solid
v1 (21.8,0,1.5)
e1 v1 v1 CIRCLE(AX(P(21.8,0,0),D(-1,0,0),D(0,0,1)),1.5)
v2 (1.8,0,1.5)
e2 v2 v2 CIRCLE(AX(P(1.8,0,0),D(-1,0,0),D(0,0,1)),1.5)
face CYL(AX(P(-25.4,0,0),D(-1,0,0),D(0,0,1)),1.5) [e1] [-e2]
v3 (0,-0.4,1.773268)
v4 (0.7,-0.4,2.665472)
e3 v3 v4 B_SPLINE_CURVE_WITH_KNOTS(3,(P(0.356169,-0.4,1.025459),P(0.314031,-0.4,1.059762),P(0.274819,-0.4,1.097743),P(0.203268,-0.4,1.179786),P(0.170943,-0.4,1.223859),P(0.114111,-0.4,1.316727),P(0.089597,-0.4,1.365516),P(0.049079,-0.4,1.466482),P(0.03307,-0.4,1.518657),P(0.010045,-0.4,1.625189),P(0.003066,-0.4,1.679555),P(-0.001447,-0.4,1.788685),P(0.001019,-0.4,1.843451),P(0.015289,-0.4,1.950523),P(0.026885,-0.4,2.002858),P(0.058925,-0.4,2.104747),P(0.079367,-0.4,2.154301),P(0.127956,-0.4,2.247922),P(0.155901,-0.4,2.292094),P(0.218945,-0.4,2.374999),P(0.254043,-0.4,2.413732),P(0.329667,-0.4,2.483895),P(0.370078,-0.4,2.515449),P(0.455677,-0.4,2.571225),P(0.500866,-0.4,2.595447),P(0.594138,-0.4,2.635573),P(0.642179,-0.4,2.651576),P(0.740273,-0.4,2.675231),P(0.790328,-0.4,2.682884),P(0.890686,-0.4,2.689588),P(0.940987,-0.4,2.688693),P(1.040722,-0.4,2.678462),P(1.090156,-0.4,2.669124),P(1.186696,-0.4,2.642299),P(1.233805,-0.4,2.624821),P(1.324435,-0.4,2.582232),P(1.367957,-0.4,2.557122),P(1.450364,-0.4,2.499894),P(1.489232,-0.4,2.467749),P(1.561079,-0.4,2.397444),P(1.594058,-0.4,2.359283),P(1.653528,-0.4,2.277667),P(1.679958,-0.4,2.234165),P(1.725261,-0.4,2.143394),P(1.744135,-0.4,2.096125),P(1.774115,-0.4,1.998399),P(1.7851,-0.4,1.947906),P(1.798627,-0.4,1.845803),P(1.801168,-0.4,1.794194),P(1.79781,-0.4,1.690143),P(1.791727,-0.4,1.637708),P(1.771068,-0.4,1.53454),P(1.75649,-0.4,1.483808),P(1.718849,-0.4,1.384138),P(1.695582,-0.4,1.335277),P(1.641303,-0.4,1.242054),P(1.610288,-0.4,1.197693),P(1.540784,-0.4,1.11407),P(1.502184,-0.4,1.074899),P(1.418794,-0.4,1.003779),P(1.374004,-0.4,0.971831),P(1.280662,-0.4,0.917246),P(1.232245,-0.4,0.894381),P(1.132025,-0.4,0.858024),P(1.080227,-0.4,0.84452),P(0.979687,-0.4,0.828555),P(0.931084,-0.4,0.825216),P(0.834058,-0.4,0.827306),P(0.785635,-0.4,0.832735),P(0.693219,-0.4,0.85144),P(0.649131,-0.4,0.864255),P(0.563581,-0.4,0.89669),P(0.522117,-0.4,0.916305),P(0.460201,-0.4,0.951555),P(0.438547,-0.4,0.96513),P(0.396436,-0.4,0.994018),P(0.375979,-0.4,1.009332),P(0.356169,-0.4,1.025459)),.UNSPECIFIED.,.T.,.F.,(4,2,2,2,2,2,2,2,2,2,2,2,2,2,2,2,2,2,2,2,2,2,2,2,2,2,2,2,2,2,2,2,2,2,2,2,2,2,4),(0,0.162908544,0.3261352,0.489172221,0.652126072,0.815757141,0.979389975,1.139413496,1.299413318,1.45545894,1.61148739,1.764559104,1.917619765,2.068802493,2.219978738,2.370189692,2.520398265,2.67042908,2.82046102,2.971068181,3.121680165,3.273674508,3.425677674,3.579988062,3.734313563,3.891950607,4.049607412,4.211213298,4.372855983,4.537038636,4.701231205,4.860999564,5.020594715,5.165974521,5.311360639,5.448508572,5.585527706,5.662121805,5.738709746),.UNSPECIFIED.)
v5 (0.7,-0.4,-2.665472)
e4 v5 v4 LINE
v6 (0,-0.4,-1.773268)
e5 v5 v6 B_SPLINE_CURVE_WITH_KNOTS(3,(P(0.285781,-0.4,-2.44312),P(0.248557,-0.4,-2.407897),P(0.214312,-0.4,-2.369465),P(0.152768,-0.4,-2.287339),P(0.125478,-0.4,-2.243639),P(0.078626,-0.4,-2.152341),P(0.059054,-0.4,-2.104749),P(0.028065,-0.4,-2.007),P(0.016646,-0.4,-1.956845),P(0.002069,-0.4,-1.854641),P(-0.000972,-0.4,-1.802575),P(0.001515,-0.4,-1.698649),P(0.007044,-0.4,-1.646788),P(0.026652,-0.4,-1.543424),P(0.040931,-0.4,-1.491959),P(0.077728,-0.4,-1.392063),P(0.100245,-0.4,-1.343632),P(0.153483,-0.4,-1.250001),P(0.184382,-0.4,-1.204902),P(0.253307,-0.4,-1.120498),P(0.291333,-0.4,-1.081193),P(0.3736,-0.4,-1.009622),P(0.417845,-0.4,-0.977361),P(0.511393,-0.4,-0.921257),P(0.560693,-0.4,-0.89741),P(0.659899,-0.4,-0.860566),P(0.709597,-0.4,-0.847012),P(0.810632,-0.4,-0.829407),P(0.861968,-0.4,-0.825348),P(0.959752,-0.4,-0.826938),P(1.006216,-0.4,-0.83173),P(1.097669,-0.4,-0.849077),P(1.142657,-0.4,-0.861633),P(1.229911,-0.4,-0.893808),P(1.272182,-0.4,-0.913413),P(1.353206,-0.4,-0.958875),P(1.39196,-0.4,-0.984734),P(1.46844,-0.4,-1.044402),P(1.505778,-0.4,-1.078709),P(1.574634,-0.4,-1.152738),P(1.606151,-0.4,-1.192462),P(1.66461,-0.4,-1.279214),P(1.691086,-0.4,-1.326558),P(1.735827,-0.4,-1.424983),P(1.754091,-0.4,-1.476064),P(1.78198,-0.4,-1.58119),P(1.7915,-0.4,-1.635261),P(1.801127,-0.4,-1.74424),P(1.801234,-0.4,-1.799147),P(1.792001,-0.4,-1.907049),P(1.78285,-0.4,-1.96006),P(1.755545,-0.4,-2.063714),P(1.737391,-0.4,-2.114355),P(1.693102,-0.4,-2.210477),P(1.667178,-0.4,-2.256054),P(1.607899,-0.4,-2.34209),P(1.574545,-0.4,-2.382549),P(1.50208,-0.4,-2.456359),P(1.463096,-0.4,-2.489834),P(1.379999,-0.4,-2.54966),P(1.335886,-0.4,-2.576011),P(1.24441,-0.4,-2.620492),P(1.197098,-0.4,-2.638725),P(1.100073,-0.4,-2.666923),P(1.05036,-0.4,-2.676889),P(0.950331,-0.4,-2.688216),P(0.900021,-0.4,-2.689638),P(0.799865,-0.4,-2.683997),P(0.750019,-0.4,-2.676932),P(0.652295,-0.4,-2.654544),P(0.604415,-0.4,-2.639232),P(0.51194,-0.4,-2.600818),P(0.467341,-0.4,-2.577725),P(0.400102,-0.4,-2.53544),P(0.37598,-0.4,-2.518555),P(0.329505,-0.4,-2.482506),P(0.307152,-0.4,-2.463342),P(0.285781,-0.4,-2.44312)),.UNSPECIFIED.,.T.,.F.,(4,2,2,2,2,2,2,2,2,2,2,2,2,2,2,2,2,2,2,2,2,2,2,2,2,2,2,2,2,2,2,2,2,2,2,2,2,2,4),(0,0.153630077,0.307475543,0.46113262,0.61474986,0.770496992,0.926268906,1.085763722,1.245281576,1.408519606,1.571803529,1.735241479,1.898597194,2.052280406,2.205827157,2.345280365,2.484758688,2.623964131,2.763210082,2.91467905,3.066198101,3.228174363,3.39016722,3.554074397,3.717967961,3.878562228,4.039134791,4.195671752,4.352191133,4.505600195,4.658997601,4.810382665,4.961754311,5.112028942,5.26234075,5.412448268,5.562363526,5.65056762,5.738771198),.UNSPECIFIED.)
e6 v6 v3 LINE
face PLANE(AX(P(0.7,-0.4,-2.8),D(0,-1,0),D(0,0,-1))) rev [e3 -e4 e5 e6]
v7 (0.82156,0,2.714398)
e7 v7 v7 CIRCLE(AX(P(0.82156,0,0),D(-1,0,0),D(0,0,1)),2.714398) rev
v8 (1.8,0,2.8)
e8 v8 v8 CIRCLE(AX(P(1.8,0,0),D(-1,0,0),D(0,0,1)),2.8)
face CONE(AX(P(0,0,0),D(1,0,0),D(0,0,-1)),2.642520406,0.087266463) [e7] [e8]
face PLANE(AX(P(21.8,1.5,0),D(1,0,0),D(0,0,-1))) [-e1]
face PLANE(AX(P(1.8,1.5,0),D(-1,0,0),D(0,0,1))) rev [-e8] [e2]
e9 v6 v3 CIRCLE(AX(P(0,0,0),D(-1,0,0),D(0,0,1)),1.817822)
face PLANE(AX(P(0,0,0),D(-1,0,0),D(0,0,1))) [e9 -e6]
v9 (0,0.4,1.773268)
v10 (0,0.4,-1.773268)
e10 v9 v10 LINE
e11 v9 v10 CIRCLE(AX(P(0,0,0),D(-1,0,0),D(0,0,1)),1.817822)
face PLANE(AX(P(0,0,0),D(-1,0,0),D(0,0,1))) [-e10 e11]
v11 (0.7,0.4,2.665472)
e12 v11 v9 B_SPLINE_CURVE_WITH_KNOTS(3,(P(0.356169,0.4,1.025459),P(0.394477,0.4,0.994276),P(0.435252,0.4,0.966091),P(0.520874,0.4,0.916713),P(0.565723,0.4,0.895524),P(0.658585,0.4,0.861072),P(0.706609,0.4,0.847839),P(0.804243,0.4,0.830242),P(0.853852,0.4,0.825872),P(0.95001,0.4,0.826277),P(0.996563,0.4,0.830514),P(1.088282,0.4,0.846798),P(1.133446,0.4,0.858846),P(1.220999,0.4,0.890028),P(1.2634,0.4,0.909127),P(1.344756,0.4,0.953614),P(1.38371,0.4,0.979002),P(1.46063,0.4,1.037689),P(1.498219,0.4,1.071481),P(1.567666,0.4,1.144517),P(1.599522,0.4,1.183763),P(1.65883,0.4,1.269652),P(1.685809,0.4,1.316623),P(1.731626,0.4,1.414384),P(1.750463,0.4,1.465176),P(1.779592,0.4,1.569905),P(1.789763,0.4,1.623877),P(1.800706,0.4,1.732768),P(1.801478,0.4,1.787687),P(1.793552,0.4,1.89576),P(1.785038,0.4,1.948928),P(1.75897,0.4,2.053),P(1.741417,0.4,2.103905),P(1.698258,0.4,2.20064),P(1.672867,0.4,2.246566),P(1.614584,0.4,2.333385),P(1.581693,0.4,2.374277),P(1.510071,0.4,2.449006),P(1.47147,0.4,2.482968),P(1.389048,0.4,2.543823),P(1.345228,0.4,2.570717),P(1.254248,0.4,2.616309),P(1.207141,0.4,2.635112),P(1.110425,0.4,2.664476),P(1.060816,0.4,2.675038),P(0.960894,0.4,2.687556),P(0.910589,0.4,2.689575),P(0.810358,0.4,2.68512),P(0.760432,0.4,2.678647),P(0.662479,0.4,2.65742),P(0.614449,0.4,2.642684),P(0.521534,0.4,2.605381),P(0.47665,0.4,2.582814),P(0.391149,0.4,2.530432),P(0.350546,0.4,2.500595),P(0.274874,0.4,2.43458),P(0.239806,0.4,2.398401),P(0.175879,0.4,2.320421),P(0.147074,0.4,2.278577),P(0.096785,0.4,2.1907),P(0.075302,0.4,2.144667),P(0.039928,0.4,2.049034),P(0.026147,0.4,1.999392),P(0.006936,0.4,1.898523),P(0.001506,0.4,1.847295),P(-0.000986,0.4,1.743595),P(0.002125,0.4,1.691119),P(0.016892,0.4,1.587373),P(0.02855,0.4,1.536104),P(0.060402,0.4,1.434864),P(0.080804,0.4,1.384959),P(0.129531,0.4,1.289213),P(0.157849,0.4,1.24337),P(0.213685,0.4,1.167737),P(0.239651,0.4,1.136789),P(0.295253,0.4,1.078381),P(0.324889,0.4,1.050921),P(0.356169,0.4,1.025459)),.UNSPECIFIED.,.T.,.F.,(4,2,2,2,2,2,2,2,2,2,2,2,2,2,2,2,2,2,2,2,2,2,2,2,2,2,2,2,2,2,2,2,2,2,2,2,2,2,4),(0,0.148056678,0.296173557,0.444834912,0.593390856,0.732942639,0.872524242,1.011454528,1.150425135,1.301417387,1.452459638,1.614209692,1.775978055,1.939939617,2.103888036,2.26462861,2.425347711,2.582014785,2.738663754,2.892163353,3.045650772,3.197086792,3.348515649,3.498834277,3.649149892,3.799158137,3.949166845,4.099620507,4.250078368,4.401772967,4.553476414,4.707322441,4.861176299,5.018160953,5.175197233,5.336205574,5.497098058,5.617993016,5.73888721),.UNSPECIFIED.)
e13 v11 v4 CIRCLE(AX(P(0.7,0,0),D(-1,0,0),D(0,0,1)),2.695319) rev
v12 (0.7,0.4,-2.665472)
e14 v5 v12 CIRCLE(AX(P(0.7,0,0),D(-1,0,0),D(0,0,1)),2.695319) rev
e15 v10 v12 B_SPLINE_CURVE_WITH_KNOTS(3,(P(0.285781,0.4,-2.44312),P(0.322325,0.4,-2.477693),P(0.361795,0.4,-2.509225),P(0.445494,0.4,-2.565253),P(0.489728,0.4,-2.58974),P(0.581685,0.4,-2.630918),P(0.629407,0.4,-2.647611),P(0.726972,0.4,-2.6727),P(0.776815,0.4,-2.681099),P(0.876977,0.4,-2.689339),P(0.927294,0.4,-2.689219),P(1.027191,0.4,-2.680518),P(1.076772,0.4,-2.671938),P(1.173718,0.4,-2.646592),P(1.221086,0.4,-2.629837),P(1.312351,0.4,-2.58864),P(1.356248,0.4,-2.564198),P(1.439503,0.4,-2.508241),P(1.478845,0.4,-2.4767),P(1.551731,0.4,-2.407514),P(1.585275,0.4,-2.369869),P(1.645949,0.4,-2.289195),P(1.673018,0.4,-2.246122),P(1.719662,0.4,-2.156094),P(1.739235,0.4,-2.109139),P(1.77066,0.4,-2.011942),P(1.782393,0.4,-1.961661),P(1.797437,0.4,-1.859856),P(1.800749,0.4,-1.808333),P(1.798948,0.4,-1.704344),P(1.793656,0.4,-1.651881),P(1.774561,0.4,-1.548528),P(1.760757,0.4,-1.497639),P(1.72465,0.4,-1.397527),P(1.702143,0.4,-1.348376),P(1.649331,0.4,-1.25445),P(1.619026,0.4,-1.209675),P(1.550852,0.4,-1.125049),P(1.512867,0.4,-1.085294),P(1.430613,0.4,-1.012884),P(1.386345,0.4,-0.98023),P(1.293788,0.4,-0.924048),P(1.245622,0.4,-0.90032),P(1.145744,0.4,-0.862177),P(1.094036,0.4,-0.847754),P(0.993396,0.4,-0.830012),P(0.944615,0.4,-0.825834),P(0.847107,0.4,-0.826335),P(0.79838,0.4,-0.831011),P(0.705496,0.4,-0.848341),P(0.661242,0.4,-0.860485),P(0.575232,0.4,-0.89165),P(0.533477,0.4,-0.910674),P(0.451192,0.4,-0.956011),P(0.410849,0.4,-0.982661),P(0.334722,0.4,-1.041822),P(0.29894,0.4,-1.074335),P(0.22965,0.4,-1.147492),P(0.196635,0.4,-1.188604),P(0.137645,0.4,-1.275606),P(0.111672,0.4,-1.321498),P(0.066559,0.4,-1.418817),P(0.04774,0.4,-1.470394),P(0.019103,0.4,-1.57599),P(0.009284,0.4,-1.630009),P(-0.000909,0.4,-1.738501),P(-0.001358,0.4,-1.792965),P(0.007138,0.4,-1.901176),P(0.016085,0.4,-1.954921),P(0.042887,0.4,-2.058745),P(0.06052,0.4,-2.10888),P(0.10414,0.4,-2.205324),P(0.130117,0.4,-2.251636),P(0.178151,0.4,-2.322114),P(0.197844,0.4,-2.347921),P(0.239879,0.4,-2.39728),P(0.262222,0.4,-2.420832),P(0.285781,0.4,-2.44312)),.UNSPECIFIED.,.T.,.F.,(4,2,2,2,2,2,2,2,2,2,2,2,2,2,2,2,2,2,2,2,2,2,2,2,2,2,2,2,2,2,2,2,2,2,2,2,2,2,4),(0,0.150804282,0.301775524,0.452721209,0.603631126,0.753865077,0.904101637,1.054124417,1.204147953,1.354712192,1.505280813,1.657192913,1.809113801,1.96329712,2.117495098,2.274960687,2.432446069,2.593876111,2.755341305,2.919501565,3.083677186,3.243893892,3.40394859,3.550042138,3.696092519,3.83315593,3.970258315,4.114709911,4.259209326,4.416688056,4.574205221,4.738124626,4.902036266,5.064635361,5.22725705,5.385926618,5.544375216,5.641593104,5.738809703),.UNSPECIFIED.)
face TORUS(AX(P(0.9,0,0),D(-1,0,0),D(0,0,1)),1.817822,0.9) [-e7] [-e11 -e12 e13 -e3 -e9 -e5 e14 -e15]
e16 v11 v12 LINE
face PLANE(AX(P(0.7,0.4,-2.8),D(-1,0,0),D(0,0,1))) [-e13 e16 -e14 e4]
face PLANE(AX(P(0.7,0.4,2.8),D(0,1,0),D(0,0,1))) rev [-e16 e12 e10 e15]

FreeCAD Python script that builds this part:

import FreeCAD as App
import Part
import Sketcher
from FreeCAD import Vector
Q = App.Units.Quantity


def edges_at(feature, points):
    """Names of the edges that pass closest to the given points."""
    edges = feature.Shape.Edges
    near = lambda p: min(range(len(edges)), key=lambda i: edges[i].distToShape(Part.Vertex(*p))[0])
    return sorted({f"Edge{near(p) + 1}" for p in points})


def add_polygon(sketch, points):
    """Adds a closed chain of lines whose ends are joined by coincident constraints."""
    first, n = sketch.GeometryCount, len(points)
    for a, b in zip(points, points[1:] + points[:1]):
        sketch.addGeometry(Part.LineSegment(App.Vector(*a, 0), App.Vector(*b, 0)), False)
    for i in range(n):
        sketch.addConstraint(Sketcher.Constraint("Coincident", first + i, 2, first + (i + 1) % n, 1))

doc = App.newDocument("Part")
body = doc.addObject("PartDesign::Body", "Body")

# Sketch on XY plane
sketch1 = body.newObject("Sketcher::SketchObject", "Sketch")
sketch1.AttachmentSupport = (doc.getObject("XY_Plane"), [""])
sketch1.MapMode = "FlatFace"
add_polygon(sketch1, [(1.8, 1.5), (1.8, 2.8), (0, 2.6), (0, 0), (21.8, 0), (21.8, 1.5)])  # lines 0-5
sketch1.addConstraint([
    Sketcher.Constraint("Vertical", 0),
    Sketcher.Constraint("Vertical", 2),
    Sketcher.Constraint("Horizontal", 3),
    Sketcher.Constraint("Vertical", 4),
    Sketcher.Constraint("Horizontal", 5),
    Sketcher.Constraint("Coincident", 2, 2, -1, 1),
    Sketcher.Constraint("DistanceX", 5, 2, 5, 1, 20.0),
    Sketcher.Constraint("Angle", 1, Q("-175 deg")),
    Sketcher.Constraint("DistanceX", 3, 1, 3, 2, 21.8),
    Sketcher.Constraint("DistanceY", 0, 1, 0, 2, 1.3),
    Sketcher.Constraint("DistanceY", 4, 1, 4, 2, 1.5),
])
revolution = body.newObject("PartDesign::Revolution", "Revolution")
revolution.Profile = sketch1
revolution.ReferenceAxis = (sketch1, ["H_Axis"])
revolution.Angle = 360
doc.recompute()

fillet = body.newObject("PartDesign::Fillet", "Fillet")
fillet.Base = (revolution, edges_at(revolution, [(0, 0, -2.643)]))
fillet.Radius = 0.9

# Sketch on YZ plane
sketch2 = body.newObject("Sketcher::SketchObject", "Sketch001")
sketch2.AttachmentSupport = (doc.getObject("YZ_Plane"), [""])
sketch2.MapMode = "FlatFace"
add_polygon(sketch2, [(0.4, 2.8), (-0.4, 2.8), (-0.4, -2.8), (0.4, -2.8)])  # lines 0-3
sketch2.addConstraint([
    Sketcher.Constraint("Horizontal", 0),
    Sketcher.Constraint("Vertical", 1),
    Sketcher.Constraint("Horizontal", 2),
    Sketcher.Constraint("Vertical", 3),
    Sketcher.Constraint("Symmetric", 0, 2, 2, 2, -1, 1),
    Sketcher.Constraint("DistanceX", 0, 2, 0, 1, 0.8),
    Sketcher.Constraint("DistanceY", 1, 2, 1, 1, 5.6),
])
pocket1 = body.newObject("PartDesign::Pocket", "Pocket")
pocket1.Profile = sketch2
pocket1.Length = 0.7
pocket1.Reversed = True

doc.recompute()
